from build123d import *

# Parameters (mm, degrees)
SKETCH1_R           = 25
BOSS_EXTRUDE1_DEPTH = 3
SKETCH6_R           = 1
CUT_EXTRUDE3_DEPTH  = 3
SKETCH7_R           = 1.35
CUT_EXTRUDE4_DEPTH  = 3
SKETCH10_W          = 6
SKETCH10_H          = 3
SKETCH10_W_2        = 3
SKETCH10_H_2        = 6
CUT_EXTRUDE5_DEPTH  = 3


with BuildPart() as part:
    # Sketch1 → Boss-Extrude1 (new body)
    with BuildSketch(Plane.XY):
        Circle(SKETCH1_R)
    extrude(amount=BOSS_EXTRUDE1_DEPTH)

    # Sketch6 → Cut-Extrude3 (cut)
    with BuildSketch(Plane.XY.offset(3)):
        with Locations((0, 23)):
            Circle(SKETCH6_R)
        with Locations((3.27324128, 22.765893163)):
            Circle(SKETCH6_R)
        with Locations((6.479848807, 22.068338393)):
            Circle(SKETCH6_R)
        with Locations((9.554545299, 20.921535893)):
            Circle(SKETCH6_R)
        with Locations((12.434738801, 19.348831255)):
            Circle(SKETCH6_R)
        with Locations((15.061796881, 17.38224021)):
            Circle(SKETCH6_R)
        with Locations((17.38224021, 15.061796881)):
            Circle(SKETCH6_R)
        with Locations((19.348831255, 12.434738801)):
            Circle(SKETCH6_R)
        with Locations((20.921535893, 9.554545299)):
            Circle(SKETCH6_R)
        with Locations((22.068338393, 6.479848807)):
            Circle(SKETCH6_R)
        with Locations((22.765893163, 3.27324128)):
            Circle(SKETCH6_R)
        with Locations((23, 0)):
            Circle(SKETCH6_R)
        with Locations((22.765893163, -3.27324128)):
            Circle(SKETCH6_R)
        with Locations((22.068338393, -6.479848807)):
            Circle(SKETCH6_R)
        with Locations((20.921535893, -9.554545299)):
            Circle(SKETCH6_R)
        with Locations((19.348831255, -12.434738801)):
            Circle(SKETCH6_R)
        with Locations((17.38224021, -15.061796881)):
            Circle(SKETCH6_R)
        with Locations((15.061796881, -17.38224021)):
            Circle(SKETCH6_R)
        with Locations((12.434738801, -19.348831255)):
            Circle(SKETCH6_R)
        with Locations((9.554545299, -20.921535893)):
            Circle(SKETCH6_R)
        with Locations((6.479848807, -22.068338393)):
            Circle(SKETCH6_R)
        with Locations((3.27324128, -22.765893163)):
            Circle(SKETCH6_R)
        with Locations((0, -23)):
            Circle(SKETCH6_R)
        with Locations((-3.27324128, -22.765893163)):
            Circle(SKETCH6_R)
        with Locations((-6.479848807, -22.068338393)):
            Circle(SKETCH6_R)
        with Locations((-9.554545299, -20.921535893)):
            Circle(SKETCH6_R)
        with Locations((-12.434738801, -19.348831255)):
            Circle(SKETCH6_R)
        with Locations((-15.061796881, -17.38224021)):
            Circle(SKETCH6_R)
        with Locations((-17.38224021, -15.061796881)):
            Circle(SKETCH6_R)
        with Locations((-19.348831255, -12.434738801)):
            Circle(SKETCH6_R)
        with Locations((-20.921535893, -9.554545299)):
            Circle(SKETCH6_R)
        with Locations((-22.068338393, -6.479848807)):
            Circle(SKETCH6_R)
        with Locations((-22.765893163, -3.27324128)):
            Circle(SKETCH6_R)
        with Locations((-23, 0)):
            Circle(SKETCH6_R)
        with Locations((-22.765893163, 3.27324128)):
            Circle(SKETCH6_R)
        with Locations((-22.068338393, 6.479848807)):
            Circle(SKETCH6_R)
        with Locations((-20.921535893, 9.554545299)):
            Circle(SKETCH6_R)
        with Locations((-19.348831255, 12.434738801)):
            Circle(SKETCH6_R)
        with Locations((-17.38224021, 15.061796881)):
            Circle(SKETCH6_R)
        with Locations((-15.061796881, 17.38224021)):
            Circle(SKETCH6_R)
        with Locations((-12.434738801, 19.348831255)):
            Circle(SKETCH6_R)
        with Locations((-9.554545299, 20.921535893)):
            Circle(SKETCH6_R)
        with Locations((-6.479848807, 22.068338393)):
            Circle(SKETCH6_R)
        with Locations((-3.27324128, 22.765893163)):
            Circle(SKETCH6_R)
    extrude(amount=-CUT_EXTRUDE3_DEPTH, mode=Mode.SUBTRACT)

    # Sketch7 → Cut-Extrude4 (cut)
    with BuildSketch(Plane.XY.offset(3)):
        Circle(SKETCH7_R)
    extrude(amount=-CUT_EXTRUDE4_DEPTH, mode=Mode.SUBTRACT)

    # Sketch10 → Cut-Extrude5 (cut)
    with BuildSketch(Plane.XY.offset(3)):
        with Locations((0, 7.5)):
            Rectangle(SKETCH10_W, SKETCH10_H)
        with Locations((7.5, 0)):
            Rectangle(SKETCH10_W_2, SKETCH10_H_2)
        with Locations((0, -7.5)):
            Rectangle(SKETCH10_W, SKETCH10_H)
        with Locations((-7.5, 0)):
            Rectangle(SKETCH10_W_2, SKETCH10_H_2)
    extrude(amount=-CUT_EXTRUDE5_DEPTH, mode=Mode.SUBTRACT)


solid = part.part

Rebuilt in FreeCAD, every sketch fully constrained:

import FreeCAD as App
import Part
import Sketcher
from FreeCAD import Vector


def add_polygon(sketch, points):
    """Adds a closed chain of lines whose ends are joined by coincident constraints."""
    first, n = sketch.GeometryCount, len(points)
    for a, b in zip(points, points[1:] + points[:1]):
        sketch.addGeometry(Part.LineSegment(App.Vector(*a, 0), App.Vector(*b, 0)), False)
    for i in range(n):
        sketch.addConstraint(Sketcher.Constraint("Coincident", first + i, 2, first + (i + 1) % n, 1))

doc = App.newDocument("Part")
body = doc.addObject("PartDesign::Body", "Body")

# Sketch on XY plane
sketch1 = body.newObject("Sketcher::SketchObject", "Sketch")
sketch1.AttachmentSupport = (doc.getObject("XY_Plane"), [""])
sketch1.MapMode = "FlatFace"
sketch1.addGeometry(Part.Circle(Vector(0, 0, 0), Vector(0, 0, 1), 25), False)
sketch1.addConstraint(Sketcher.Constraint("Coincident", 0, 3, -1, 1))
sketch1.addConstraint(Sketcher.Constraint("Diameter", 0, 50.0))
pad1 = body.newObject("PartDesign::Pad", "Pad")
pad1.Profile = sketch1
pad1.Length = 3

# Sketch on XY plane
sketch2 = body.newObject("Sketcher::SketchObject", "Sketch001")
sketch2.AttachmentSupport = (doc.getObject("XY_Plane"), [""])
sketch2.MapMode = "FlatFace"
sketch2.AttachmentOffset = App.Placement(Vector(0, 0, 3), App.Rotation())
sketch2.addGeometry(Part.Circle(Vector(0, 23, 0), Vector(0, 0, 1), 1), False)
sketch2.addGeometry(Part.Circle(Vector(3.3, 22.8, 0), Vector(0, 0, 1), 1), False)
sketch2.addGeometry(Part.Circle(Vector(6.5, 22.1, 0), Vector(0, 0, 1), 1), False)
sketch2.addGeometry(Part.Circle(Vector(9.6, 20.9, 0), Vector(0, 0, 1), 1), False)
sketch2.addGeometry(Part.Circle(Vector(12.4, 19.3, 0), Vector(0, 0, 1), 1), False)
sketch2.addGeometry(Part.Circle(Vector(15.1, 17.4, 0), Vector(0, 0, 1), 1), False)
sketch2.addGeometry(Part.Circle(Vector(17.4, 15.1, 0), Vector(0, 0, 1), 1), False)
sketch2.addGeometry(Part.Circle(Vector(19.3, 12.4, 0), Vector(0, 0, 1), 1), False)
sketch2.addGeometry(Part.Circle(Vector(20.9, 9.6, 0), Vector(0, 0, 1), 1), False)
sketch2.addGeometry(Part.Circle(Vector(22.1, 6.5, 0), Vector(0, 0, 1), 1), False)
sketch2.addGeometry(Part.Circle(Vector(22.8, 3.3, 0), Vector(0, 0, 1), 1), False)
sketch2.addGeometry(Part.Circle(Vector(23, 0, 0), Vector(0, 0, 1), 1), False)
sketch2.addGeometry(Part.Circle(Vector(22.8, -3.3, 0), Vector(0, 0, 1), 1), False)
sketch2.addGeometry(Part.Circle(Vector(22.1, -6.5, 0), Vector(0, 0, 1), 1), False)
sketch2.addGeometry(Part.Circle(Vector(20.9, -9.6, 0), Vector(0, 0, 1), 1), False)
sketch2.addGeometry(Part.Circle(Vector(19.3, -12.4, 0), Vector(0, 0, 1), 1), False)
sketch2.addGeometry(Part.Circle(Vector(17.4, -15.1, 0), Vector(0, 0, 1), 1), False)
sketch2.addGeometry(Part.Circle(Vector(15.1, -17.4, 0), Vector(0, 0, 1), 1), False)
sketch2.addGeometry(Part.Circle(Vector(12.4, -19.3, 0), Vector(0, 0, 1), 1), False)
sketch2.addGeometry(Part.Circle(Vector(9.6, -20.9, 0), Vector(0, 0, 1), 1), False)
sketch2.addGeometry(Part.Circle(Vector(6.5, -22.1, 0), Vector(0, 0, 1), 1), False)
sketch2.addGeometry(Part.Circle(Vector(3.3, -22.8, 0), Vector(0, 0, 1), 1), False)
sketch2.addGeometry(Part.Circle(Vector(0, -23, 0), Vector(0, 0, 1), 1), False)
sketch2.addGeometry(Part.Circle(Vector(-3.3, -22.8, 0), Vector(0, 0, 1), 1), False)
sketch2.addGeometry(Part.Circle(Vector(-6.5, -22.1, 0), Vector(0, 0, 1), 1), False)
sketch2.addGeometry(Part.Circle(Vector(-9.6, -20.9, 0), Vector(0, 0, 1), 1), False)
sketch2.addGeometry(Part.Circle(Vector(-12.4, -19.3, 0), Vector(0, 0, 1), 1), False)
sketch2.addGeometry(Part.Circle(Vector(-15.1, -17.4, 0), Vector(0, 0, 1), 1), False)
sketch2.addGeometry(Part.Circle(Vector(-17.4, -15.1, 0), Vector(0, 0, 1), 1), False)
sketch2.addGeometry(Part.Circle(Vector(-19.3, -12.4, 0), Vector(0, 0, 1), 1), False)
sketch2.addGeometry(Part.Circle(Vector(-20.9, -9.6, 0), Vector(0, 0, 1), 1), False)
sketch2.addGeometry(Part.Circle(Vector(-22.1, -6.5, 0), Vector(0, 0, 1), 1), False)
sketch2.addGeometry(Part.Circle(Vector(-22.8, -3.3, 0), Vector(0, 0, 1), 1), False)
sketch2.addGeometry(Part.Circle(Vector(-23, 0, 0), Vector(0, 0, 1), 1), False)
sketch2.addGeometry(Part.Circle(Vector(-22.8, 3.3, 0), Vector(0, 0, 1), 1), False)
sketch2.addGeometry(Part.Circle(Vector(-22.1, 6.5, 0), Vector(0, 0, 1), 1), False)
sketch2.addGeometry(Part.Circle(Vector(-20.9, 9.6, 0), Vector(0, 0, 1), 1), False)
sketch2.addGeometry(Part.Circle(Vector(-19.3, 12.4, 0), Vector(0, 0, 1), 1), False)
sketch2.addGeometry(Part.Circle(Vector(-17.4, 15.1, 0), Vector(0, 0, 1), 1), False)
sketch2.addGeometry(Part.Circle(Vector(-15.1, 17.4, 0), Vector(0, 0, 1), 1), False)
sketch2.addGeometry(Part.Circle(Vector(-12.4, 19.3, 0), Vector(0, 0, 1), 1), False)
sketch2.addGeometry(Part.Circle(Vector(-9.6, 20.9, 0), Vector(0, 0, 1), 1), False)
sketch2.addGeometry(Part.Circle(Vector(-6.5, 22.1, 0), Vector(0, 0, 1), 1), False)
sketch2.addGeometry(Part.Circle(Vector(-3.3, 22.8, 0), Vector(0, 0, 1), 1), False)
sketch2.addConstraint(Sketcher.Constraint("Equal", 0, 1))
sketch2.addConstraint(Sketcher.Constraint("Equal", 1, 2))
sketch2.addConstraint(Sketcher.Constraint("Equal", 2, 3))
sketch2.addConstraint(Sketcher.Constraint("Equal", 3, 4))
sketch2.addConstraint(Sketcher.Constraint("Equal", 4, 5))
sketch2.addConstraint(Sketcher.Constraint("Equal", 5, 6))
sketch2.addConstraint(Sketcher.Constraint("Equal", 6, 7))
sketch2.addConstraint(Sketcher.Constraint("Equal", 7, 8))
sketch2.addConstraint(Sketcher.Constraint("Equal", 8, 9))
sketch2.addConstraint(Sketcher.Constraint("Equal", 9, 10))
sketch2.addConstraint(Sketcher.Constraint("Equal", 10, 11))
sketch2.addConstraint(Sketcher.Constraint("Equal", 11, 12))
sketch2.addConstraint(Sketcher.Constraint("Equal", 12, 13))
sketch2.addConstraint(Sketcher.Constraint("Equal", 13, 14))
sketch2.addConstraint(Sketcher.Constraint("Equal", 14, 15))
sketch2.addConstraint(Sketcher.Constraint("Equal", 15, 16))
sketch2.addConstraint(Sketcher.Constraint("Equal", 16, 17))
sketch2.addConstraint(Sketcher.Constraint("Equal", 17, 18))
sketch2.addConstraint(Sketcher.Constraint("Equal", 18, 19))
sketch2.addConstraint(Sketcher.Constraint("Equal", 19, 20))
sketch2.addConstraint(Sketcher.Constraint("Equal", 20, 21))
sketch2.addConstraint(Sketcher.Constraint("Equal", 21, 22))
sketch2.addConstraint(Sketcher.Constraint("Equal", 22, 23))
sketch2.addConstraint(Sketcher.Constraint("Equal", 23, 24))
sketch2.addConstraint(Sketcher.Constraint("Equal", 24, 25))
sketch2.addConstraint(Sketcher.Constraint("Equal", 25, 26))
sketch2.addConstraint(Sketcher.Constraint("Equal", 26, 27))
sketch2.addConstraint(Sketcher.Constraint("Equal", 27, 28))
sketch2.addConstraint(Sketcher.Constraint("Equal", 28, 29))
sketch2.addConstraint(Sketcher.Constraint("Equal", 29, 30))
sketch2.addConstraint(Sketcher.Constraint("Equal", 30, 31))
sketch2.addConstraint(Sketcher.Constraint("Equal", 31, 32))
sketch2.addConstraint(Sketcher.Constraint("Equal", 32, 33))
sketch2.addConstraint(Sketcher.Constraint("Equal", 33, 34))
sketch2.addConstraint(Sketcher.Constraint("Equal", 34, 35))
sketch2.addConstraint(Sketcher.Constraint("Equal", 35, 36))
sketch2.addConstraint(Sketcher.Constraint("Equal", 36, 37))
sketch2.addConstraint(Sketcher.Constraint("Equal", 37, 38))
sketch2.addConstraint(Sketcher.Constraint("Equal", 38, 39))
sketch2.addConstraint(Sketcher.Constraint("Equal", 39, 40))
sketch2.addConstraint(Sketcher.Constraint("Equal", 40, 41))
sketch2.addConstraint(Sketcher.Constraint("Equal", 41, 42))
sketch2.addConstraint(Sketcher.Constraint("Equal", 42, 43))
sketch2.addConstraint(Sketcher.Constraint("Symmetric", 0, 3, 22, 3, -1, 1))
sketch2.addConstraint(Sketcher.Constraint("Symmetric", 1, 3, 23, 3, -1, 1))
sketch2.addConstraint(Sketcher.Constraint("Symmetric", 2, 3, 24, 3, -1, 1))
sketch2.addConstraint(Sketcher.Constraint("Symmetric", 3, 3, 25, 3, -1, 1))
sketch2.addConstraint(Sketcher.Constraint("Symmetric", 4, 3, 26, 3, -1, 1))
sketch2.addConstraint(Sketcher.Constraint("Symmetric", 5, 3, 27, 3, -1, 1))
sketch2.addConstraint(Sketcher.Constraint("Symmetric", 6, 3, 28, 3, -1, 1))
sketch2.addConstraint(Sketcher.Constraint("Symmetric", 7, 3, 29, 3, -1, 1))
sketch2.addConstraint(Sketcher.Constraint("Symmetric", 8, 3, 30, 3, -1, 1))
sketch2.addConstraint(Sketcher.Constraint("Symmetric", 9, 3, 31, 3, -1, 1))
sketch2.addConstraint(Sketcher.Constraint("Symmetric", 10, 3, 32, 3, -1, 1))
sketch2.addConstraint(Sketcher.Constraint("Symmetric", 11, 3, 33, 3, -1, 1))
sketch2.addConstraint(Sketcher.Constraint("Symmetric", 12, 3, 34, 3, -1, 1))
sketch2.addConstraint(Sketcher.Constraint("Symmetric", 13, 3, 35, 3, -1, 1))
sketch2.addConstraint(Sketcher.Constraint("Symmetric", 14, 3, 36, 3, -1, 1))
sketch2.addConstraint(Sketcher.Constraint("Symmetric", 15, 3, 37, 3, -1, 1))
sketch2.addConstraint(Sketcher.Constraint("Symmetric", 16, 3, 38, 3, -1, 1))
sketch2.addConstraint(Sketcher.Constraint("Symmetric", 17, 3, 39, 3, -1, 1))
sketch2.addConstraint(Sketcher.Constraint("Symmetric", 18, 3, 40, 3, -1, 1))
sketch2.addConstraint(Sketcher.Constraint("Symmetric", 19, 3, 41, 3, -1, 1))
sketch2.addConstraint(Sketcher.Constraint("Symmetric", 20, 3, 42, 3, -1, 1))
sketch2.addConstraint(Sketcher.Constraint("Symmetric", 21, 3, 43, 3, -1, 1))
sketch2.addConstraint(Sketcher.Constraint("Symmetric", 21, 3, 23, 3, -2))
sketch2.addConstraint(Sketcher.Constraint("Symmetric", 20, 3, 24, 3, -2))
sketch2.addConstraint(Sketcher.Constraint("Symmetric", 19, 3, 25, 3, -2))
sketch2.addConstraint(Sketcher.Constraint("Symmetric", 18, 3, 26, 3, -2))
sketch2.addConstraint(Sketcher.Constraint("Symmetric", 17, 3, 27, 3, -2))
sketch2.addConstraint(Sketcher.Constraint("Symmetric", 16, 3, 28, 3, -2))
sketch2.addConstraint(Sketcher.Constraint("Symmetric", 15, 3, 29, 3, -2))
sketch2.addConstraint(Sketcher.Constraint("Symmetric", 14, 3, 30, 3, -2))
sketch2.addConstraint(Sketcher.Constraint("Symmetric", 13, 3, 31, 3, -2))
sketch2.addConstraint(Sketcher.Constraint("Symmetric", 12, 3, 32, 3, -2))
sketch2.addConstraint(Sketcher.Constraint("PointOnObject", 0, 3, -2))
sketch2.addConstraint(Sketcher.Constraint("PointOnObject", 11, 3, -1))
sketch2.addConstraint(Sketcher.Constraint("Diameter", 0, 2.0))
sketch2.addConstraint(Sketcher.Constraint("DistanceY", -1, 1, 0, 3, 23.0))
sketch2.addConstraint(Sketcher.Constraint("DistanceX", -1, 1, 11, 3, 23.0))
sketch2.addConstraint(Sketcher.Constraint("DistanceX", 1, 3, 6, 3, 14.108999))
sketch2.addConstraint(Sketcher.Constraint("DistanceY", 10, 3, 5, 3, 14.108999))
sketch2.addConstraint(Sketcher.Constraint("DistanceY", 5, 3, 2, 3, 4.686098))
sketch2.addConstraint(Sketcher.Constraint("DistanceX", 4, 3, 6, 3, 4.947501))
sketch2.addConstraint(Sketcher.Constraint("DistanceY", 7, 3, 5, 3, 4.947501))
sketch2.addConstraint(Sketcher.Constraint("DistanceX", 6, 3, 9, 3, 4.686098))
sketch2.addConstraint(Sketcher.Constraint("DistanceX", -1, 1, 1, 3, 3.273241))
sketch2.addConstraint(Sketcher.Constraint("DistanceX", -1, 1, 2, 3, 6.479849))
sketch2.addConstraint(Sketcher.Constraint("DistanceY", -1, 1, 2, 3, 22.068338))
sketch2.addConstraint(Sketcher.Constraint("DistanceY", -1, 1, 4, 3, 19.348831))
sketch2.addConstraint(Sketcher.Constraint("DistanceX", -1, 1, 7, 3, 19.348831))
sketch2.addConstraint(Sketcher.Constraint("DistanceY", -1, 1, 9, 3, 6.479849))
sketch2.addConstraint(Sketcher.Constraint("DistanceY", 4, 3, 1, 3, 3.417062))
sketch2.addConstraint(Sketcher.Constraint("DistanceX", 4, 3, 5, 3, 2.627058))
sketch2.addConstraint(Sketcher.Constraint("DistanceX", 3, 3, 5, 3, 5.507252))
sketch2.addConstraint(Sketcher.Constraint("DistanceY", 6, 3, 3, 3, 5.859739))
sketch2.addConstraint(Sketcher.Constraint("DistanceY", 6, 3, 2, 3, 7.006542))
sketch2.addConstraint(Sketcher.Constraint("DistanceY", 8, 3, 6, 3, 5.507252))
sketch2.addConstraint(Sketcher.Constraint("DistanceX", 5, 3, 8, 3, 5.859739))
sketch2.addConstraint(Sketcher.Constraint("DistanceX", 7, 3, 10, 3, 3.417062))
pocket1 = body.newObject("PartDesign::Pocket", "Pocket")
pocket1.Profile = sketch2
pocket1.Length = 3

# Sketch on XY plane
sketch3 = body.newObject("Sketcher::SketchObject", "Sketch002")
sketch3.AttachmentSupport = (doc.getObject("XY_Plane"), [""])
sketch3.MapMode = "FlatFace"
sketch3.AttachmentOffset = App.Placement(Vector(0, 0, 3), App.Rotation())
sketch3.addGeometry(Part.Circle(Vector(0, 0, 0), Vector(0, 0, 1), 1.4), False)
sketch3.addConstraint(Sketcher.Constraint("Coincident", 0, 3, -1, 1))
sketch3.addConstraint(Sketcher.Constraint("Diameter", 0, 2.7))
pocket2 = body.newObject("PartDesign::Pocket", "Pocket001")
pocket2.Profile = sketch3
pocket2.Length = 3

# Sketch on XY plane
sketch4 = body.newObject("Sketcher::SketchObject", "Sketch003")
sketch4.AttachmentSupport = (doc.getObject("XY_Plane"), [""])
sketch4.MapMode = "FlatFace"
sketch4.AttachmentOffset = App.Placement(Vector(0, 0, 3), App.Rotation())
add_polygon(sketch4, [(-3, 9), (-3, 6), (3, 6), (3, 9)])  # lines 0-3
add_polygon(sketch4, [(6, 3), (6, -3), (9, -3), (9, 3)])  # lines 4-7
add_polygon(sketch4, [(-3, -6), (-3, -9), (3, -9), (3, -6)])  # lines 8-11
add_polygon(sketch4, [(-9, 3), (-9, -3), (-6, -3), (-6, 3)])  # lines 12-15
sketch4.addConstraint(Sketcher.Constraint("Vertical", 0))
sketch4.addConstraint(Sketcher.Constraint("Horizontal", 1))
sketch4.addConstraint(Sketcher.Constraint("Vertical", 2))
sketch4.addConstraint(Sketcher.Constraint("Horizontal", 3))
sketch4.addConstraint(Sketcher.Constraint("Vertical", 4))
sketch4.addConstraint(Sketcher.Constraint("Horizontal", 5))
sketch4.addConstraint(Sketcher.Constraint("Vertical", 6))
sketch4.addConstraint(Sketcher.Constraint("Horizontal", 7))
sketch4.addConstraint(Sketcher.Constraint("Vertical", 8))
sketch4.addConstraint(Sketcher.Constraint("Horizontal", 9))
sketch4.addConstraint(Sketcher.Constraint("Vertical", 10))
sketch4.addConstraint(Sketcher.Constraint("Horizontal", 11))
sketch4.addConstraint(Sketcher.Constraint("Vertical", 12))
sketch4.addConstraint(Sketcher.Constraint("Horizontal", 13))
sketch4.addConstraint(Sketcher.Constraint("Vertical", 14))
sketch4.addConstraint(Sketcher.Constraint("Horizontal", 15))
sketch4.addConstraint(Sketcher.Constraint("Symmetric", 2, 2, 8, 2, -1, 1))
sketch4.addConstraint(Sketcher.Constraint("Symmetric", 0, 2, 10, 2, -1, 1))
sketch4.addConstraint(Sketcher.Constraint("Symmetric", 6, 2, 12, 2, -1, 1))
sketch4.addConstraint(Sketcher.Constraint("Symmetric", 4, 2, 14, 2, -1, 1))
sketch4.addConstraint(Sketcher.Constraint("Horizontal", 5, 2, 12, 2))
sketch4.addConstraint(Sketcher.Constraint("Vertical", 3, 2, 8, 2))
sketch4.addConstraint(Sketcher.Constraint("Equal", 15, 0))
sketch4.addConstraint(Sketcher.Constraint("Equal", 11, 4))
sketch4.addConstraint(Sketcher.Constraint("DistanceX", 1, 1, 1, 2, 6.0))
sketch4.addConstraint(Sketcher.Constraint("DistanceX", 5, 1, 5, 2, 3.0))
sketch4.addConstraint(Sketcher.Constraint("DistanceY", -1, 1, 0, 2, 6.0))
sketch4.addConstraint(Sketcher.Constraint("DistanceX", -1, 1, 4, 2, 6.0))
pocket3 = body.newObject("PartDesign::Pocket", "Pocket002")
pocket3.Profile = sketch4
pocket3.Length = 3

doc.recompute()
